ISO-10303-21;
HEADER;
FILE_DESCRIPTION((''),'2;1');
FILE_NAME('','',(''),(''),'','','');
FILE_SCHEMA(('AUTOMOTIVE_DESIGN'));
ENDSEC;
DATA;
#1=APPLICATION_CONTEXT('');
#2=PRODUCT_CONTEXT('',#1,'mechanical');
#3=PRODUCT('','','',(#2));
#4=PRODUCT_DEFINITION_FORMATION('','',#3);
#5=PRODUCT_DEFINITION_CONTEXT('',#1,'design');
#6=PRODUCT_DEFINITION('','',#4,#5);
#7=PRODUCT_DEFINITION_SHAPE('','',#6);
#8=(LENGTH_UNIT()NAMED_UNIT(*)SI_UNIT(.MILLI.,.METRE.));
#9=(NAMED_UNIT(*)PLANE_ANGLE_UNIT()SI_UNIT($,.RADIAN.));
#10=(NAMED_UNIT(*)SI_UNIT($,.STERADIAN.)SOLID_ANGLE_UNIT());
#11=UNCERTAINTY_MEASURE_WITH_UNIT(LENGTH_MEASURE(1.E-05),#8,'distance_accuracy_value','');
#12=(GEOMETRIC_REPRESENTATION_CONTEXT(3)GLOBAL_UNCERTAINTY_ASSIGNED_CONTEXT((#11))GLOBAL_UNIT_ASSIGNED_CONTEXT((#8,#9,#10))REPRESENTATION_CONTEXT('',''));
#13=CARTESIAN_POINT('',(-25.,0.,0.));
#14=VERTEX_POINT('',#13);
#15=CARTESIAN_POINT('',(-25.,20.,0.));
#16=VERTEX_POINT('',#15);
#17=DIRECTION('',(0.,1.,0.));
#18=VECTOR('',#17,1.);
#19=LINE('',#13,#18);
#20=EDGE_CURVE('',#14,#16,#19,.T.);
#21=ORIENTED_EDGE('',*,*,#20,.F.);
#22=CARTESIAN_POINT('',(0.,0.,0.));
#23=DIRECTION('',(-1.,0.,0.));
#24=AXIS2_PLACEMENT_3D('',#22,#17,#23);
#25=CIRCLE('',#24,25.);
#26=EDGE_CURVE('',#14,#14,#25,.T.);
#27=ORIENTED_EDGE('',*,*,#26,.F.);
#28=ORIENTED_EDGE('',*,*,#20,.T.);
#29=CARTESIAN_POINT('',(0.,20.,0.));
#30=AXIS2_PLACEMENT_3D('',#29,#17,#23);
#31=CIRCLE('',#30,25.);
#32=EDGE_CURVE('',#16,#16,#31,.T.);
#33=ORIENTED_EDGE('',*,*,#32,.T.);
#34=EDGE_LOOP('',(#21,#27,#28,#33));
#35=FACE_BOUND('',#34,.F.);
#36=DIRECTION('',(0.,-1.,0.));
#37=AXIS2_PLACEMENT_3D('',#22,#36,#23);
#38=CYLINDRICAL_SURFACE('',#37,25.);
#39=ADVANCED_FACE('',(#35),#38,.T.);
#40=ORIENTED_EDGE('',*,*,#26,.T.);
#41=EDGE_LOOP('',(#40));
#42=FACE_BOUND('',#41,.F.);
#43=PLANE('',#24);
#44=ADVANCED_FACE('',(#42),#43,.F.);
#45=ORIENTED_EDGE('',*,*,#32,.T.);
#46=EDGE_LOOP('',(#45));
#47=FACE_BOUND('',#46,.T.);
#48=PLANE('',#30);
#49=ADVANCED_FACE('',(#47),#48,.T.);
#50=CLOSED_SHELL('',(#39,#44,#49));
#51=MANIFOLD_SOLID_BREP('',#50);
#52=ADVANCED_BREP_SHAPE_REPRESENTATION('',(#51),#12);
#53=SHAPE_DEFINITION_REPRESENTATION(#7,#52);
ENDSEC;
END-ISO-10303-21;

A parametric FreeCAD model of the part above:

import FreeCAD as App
import Part
import Sketcher
from FreeCAD import Vector

doc = App.newDocument("Part")
body = doc.addObject("PartDesign::Body", "Body")

sketch1 = doc.addObject("Sketcher::SketchObject", "Sketch")
body.addObject(sketch1)
sketch1.AttachmentSupport = (doc.XZ_Plane, [""])
sketch1.MapMode = "FlatFace"
sketch1.addGeometry(Part.Circle(Vector(0, 0, 0), Vector(0, 0, 1), 25), False)
sketch1.addConstraint([
    Sketcher.Constraint("Coincident", 0, 3, -1, 1),
    Sketcher.Constraint("Diameter", 0, 50.0),
])
pad1 = doc.addObject("PartDesign::Pad", "Pad")
body.addObject(pad1)
pad1.Profile = sketch1
pad1.Length = 20
pad1.Reversed = True

doc.recompute()
